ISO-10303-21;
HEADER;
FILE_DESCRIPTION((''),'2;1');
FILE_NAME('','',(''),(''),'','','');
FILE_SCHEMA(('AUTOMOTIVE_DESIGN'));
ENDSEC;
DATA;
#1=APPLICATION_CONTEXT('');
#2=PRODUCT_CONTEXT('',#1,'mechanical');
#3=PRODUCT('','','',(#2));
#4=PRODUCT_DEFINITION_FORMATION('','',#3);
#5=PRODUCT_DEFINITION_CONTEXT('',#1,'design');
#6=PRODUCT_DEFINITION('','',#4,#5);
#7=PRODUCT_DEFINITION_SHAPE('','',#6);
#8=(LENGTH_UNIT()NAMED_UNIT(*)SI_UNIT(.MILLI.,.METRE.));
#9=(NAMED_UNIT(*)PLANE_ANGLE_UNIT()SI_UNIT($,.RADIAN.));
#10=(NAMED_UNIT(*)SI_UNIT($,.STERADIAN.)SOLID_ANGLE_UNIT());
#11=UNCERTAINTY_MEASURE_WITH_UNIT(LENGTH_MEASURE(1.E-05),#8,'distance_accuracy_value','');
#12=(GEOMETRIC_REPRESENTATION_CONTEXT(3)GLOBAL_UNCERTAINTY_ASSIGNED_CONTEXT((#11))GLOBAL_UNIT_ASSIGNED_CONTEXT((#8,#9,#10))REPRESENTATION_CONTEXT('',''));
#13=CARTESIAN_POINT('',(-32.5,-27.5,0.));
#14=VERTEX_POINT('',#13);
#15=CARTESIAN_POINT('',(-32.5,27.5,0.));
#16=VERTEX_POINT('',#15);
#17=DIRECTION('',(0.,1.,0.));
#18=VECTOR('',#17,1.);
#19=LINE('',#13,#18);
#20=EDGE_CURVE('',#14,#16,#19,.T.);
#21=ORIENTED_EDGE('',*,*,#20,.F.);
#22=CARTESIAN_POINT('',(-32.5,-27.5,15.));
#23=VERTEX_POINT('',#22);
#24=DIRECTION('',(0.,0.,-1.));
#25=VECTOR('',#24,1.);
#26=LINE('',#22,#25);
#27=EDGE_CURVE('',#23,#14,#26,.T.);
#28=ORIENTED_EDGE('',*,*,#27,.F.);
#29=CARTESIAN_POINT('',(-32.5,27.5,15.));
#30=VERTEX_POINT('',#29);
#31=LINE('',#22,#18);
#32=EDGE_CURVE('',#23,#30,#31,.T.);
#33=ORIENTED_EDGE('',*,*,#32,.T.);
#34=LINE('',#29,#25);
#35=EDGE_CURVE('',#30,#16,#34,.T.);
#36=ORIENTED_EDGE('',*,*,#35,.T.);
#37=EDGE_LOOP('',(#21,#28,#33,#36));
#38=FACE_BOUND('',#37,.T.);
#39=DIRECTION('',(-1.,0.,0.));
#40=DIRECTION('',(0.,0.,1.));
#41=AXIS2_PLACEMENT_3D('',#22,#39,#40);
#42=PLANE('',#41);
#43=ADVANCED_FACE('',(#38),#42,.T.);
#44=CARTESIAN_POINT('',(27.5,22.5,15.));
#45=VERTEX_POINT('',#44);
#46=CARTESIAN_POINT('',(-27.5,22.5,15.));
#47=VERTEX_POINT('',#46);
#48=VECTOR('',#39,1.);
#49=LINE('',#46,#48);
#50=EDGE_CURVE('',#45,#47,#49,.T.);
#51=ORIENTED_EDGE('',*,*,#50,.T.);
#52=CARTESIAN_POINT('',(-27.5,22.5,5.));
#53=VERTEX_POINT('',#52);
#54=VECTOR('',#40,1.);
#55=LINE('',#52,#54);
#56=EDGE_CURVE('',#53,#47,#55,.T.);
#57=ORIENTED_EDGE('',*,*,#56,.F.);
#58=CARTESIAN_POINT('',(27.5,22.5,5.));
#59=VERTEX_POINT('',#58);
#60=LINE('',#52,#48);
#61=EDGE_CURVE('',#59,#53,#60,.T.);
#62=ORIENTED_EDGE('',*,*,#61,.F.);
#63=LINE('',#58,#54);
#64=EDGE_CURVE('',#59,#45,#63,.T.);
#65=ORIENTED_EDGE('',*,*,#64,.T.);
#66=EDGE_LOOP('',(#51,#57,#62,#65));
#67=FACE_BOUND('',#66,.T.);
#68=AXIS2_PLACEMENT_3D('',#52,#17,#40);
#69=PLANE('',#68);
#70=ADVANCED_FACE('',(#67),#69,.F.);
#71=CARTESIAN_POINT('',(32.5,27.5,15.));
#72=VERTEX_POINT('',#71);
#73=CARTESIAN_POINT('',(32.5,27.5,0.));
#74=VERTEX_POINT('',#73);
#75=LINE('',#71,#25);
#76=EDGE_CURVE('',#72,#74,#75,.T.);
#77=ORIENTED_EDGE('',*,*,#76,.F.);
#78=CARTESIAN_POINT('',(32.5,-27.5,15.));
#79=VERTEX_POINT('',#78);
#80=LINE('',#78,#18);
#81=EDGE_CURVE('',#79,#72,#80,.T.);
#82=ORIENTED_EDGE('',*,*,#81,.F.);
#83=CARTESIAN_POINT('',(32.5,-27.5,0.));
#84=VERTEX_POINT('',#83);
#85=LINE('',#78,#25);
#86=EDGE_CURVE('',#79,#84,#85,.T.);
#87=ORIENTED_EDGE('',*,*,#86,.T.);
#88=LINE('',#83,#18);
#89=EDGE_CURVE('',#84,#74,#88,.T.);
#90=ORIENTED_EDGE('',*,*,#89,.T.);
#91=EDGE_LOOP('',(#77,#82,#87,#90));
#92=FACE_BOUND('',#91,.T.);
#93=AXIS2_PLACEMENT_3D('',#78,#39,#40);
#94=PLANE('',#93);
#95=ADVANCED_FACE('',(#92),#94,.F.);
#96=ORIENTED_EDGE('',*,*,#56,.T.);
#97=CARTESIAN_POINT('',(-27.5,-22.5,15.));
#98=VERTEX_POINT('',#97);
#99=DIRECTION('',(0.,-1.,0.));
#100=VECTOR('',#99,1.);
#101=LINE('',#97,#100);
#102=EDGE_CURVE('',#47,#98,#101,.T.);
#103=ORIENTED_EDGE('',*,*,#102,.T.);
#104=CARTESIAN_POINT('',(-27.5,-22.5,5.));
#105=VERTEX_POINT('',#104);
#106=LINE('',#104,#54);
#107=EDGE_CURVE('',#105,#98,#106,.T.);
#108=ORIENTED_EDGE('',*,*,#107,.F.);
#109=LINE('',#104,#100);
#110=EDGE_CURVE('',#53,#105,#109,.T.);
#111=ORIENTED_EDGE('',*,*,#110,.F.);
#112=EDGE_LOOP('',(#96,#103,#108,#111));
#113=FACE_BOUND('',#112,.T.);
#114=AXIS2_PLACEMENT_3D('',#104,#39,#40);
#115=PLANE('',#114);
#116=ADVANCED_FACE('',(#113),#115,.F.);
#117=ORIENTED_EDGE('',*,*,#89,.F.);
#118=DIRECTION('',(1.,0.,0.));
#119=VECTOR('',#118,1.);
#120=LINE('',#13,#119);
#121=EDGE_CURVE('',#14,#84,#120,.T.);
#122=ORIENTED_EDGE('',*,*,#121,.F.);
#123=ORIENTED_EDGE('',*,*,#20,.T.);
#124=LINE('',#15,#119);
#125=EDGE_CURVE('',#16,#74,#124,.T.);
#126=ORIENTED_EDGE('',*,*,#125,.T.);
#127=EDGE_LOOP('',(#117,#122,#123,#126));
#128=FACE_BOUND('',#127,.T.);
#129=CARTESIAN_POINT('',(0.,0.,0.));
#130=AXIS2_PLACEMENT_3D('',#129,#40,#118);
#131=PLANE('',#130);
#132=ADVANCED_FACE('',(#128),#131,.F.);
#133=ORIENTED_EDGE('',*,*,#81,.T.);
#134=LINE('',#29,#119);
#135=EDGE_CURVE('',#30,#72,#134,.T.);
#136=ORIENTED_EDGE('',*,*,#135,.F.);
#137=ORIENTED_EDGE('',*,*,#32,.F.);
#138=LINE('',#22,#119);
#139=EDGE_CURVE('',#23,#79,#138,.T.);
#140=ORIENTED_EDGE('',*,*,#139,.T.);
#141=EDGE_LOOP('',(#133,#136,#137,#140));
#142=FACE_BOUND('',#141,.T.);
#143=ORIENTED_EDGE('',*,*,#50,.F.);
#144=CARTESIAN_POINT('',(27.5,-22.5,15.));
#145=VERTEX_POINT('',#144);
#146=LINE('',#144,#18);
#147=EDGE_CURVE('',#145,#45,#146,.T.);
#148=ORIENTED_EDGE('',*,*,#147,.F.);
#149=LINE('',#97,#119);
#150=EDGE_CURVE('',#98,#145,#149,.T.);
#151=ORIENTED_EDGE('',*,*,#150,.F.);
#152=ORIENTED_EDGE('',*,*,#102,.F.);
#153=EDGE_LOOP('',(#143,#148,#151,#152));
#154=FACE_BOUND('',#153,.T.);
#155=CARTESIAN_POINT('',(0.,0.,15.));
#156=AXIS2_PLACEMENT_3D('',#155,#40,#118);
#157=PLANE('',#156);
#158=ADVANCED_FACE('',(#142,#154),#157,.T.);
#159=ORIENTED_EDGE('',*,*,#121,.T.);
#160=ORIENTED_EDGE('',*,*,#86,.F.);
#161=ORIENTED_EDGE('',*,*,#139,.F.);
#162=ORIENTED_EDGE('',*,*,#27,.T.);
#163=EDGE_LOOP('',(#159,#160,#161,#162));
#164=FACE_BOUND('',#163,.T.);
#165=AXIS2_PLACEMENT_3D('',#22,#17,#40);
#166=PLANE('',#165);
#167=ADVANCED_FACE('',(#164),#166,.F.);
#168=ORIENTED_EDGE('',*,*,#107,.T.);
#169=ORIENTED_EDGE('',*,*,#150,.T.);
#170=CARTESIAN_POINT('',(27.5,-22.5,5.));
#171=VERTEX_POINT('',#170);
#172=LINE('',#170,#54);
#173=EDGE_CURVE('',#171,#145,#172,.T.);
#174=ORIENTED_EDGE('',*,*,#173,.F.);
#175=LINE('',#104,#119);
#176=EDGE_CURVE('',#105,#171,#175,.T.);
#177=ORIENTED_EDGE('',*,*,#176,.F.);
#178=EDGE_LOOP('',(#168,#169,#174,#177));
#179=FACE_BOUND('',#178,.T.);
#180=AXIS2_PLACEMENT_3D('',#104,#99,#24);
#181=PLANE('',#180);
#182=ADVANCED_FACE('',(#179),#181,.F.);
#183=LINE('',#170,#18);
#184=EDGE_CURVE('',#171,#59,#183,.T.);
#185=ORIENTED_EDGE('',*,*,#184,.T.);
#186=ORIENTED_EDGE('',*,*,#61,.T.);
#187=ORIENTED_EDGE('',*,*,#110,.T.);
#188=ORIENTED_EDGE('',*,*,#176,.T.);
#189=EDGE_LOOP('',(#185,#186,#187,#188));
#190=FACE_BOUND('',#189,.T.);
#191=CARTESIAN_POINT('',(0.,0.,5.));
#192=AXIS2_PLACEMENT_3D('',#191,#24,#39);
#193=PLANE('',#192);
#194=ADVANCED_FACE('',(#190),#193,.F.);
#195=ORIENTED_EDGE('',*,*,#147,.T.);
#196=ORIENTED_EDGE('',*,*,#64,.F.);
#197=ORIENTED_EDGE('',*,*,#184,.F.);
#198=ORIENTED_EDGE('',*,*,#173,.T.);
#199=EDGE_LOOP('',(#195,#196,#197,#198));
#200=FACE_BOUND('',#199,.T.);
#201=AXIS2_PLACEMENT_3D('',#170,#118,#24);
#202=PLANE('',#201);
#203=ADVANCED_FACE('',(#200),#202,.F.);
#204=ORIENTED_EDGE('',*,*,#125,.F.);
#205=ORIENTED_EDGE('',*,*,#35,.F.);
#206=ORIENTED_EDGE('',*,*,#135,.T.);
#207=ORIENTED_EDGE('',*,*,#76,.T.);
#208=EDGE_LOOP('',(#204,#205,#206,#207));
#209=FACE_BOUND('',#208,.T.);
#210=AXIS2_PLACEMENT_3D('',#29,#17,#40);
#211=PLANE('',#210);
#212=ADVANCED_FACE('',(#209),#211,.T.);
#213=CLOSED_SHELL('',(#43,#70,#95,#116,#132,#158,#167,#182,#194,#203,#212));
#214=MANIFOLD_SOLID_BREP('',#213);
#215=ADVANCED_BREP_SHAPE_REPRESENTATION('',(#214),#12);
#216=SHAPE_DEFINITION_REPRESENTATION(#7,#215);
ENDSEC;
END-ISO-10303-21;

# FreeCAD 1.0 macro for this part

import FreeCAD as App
import Part
import Sketcher
from FreeCAD import Vector


def add_polygon(sketch, points):
    """Adds a closed chain of lines whose ends are joined by coincident constraints."""
    first, n = sketch.GeometryCount, len(points)
    for a, b in zip(points, points[1:] + points[:1]):
        sketch.addGeometry(Part.LineSegment(App.Vector(*a, 0), App.Vector(*b, 0)), False)
    for i in range(n):
        sketch.addConstraint(Sketcher.Constraint("Coincident", first + i, 2, first + (i + 1) % n, 1))

doc = App.newDocument("Part")
body = doc.addObject("PartDesign::Body", "Body")

sketch1 = doc.addObject("Sketcher::SketchObject", "Sketch")
body.addObject(sketch1)
sketch1.AttachmentSupport = (doc.XY_Plane, [""])
sketch1.MapMode = "FlatFace"
add_polygon(sketch1, [(-32.5, 27.5), (-32.5, -27.5), (32.5, -27.5), (32.5, 27.5)])
sketch1.addConstraint(Sketcher.Constraint("Vertical", 0))
sketch1.addConstraint(Sketcher.Constraint("Horizontal", 1))
sketch1.addConstraint(Sketcher.Constraint("Vertical", 2))
sketch1.addConstraint(Sketcher.Constraint("Horizontal", 3))
sketch1.addConstraint(Sketcher.Constraint("Symmetric", 0, 2, 2, 2, -1, 1))
sketch1.addConstraint(Sketcher.Constraint("DistanceX", 1, 1, 1, 2, 65.0))
sketch1.addConstraint(Sketcher.Constraint("DistanceY", 0, 2, 0, 1, 55.0))
pad1 = doc.addObject("PartDesign::Pad", "Pad")
body.addObject(pad1)
pad1.Profile = sketch1
pad1.Length = 15

sketch2 = doc.addObject("Sketcher::SketchObject", "Sketch001")
body.addObject(sketch2)
sketch2.AttachmentSupport = (doc.XY_Plane, [""])
sketch2.MapMode = "FlatFace"
sketch2.AttachmentOffset = App.Placement(Vector(0, 0, 15), App.Rotation())
add_polygon(sketch2, [(-27.5, 22.5), (-27.5, -22.5), (27.5, -22.5), (27.5, 22.5)])
sketch2.addConstraint(Sketcher.Constraint("Vertical", 0))
sketch2.addConstraint(Sketcher.Constraint("Horizontal", 1))
sketch2.addConstraint(Sketcher.Constraint("Vertical", 2))
sketch2.addConstraint(Sketcher.Constraint("Horizontal", 3))
sketch2.addConstraint(Sketcher.Constraint("Symmetric", 0, 2, 2, 2, -1, 1))
sketch2.addConstraint(Sketcher.Constraint("DistanceX", 1, 1, 1, 2, 55.0))
sketch2.addConstraint(Sketcher.Constraint("DistanceY", 0, 2, 0, 1, 45.0))
pocket1 = doc.addObject("PartDesign::Pocket", "Pocket")
body.addObject(pocket1)
pocket1.Profile = sketch2
pocket1.Length = 10

doc.recompute()
